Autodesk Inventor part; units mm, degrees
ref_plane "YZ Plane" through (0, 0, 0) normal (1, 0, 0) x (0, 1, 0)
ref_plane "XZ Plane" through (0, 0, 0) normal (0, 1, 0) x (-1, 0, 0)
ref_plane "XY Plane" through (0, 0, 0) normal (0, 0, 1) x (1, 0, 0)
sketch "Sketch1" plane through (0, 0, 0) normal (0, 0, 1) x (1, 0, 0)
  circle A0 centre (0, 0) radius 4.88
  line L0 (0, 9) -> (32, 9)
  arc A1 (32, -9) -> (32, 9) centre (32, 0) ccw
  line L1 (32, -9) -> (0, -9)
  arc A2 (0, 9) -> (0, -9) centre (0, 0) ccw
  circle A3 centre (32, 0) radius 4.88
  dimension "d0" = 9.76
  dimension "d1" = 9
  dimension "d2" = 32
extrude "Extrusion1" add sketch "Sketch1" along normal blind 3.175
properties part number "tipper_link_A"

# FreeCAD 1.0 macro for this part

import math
import FreeCAD as App
import Part
import Sketcher

V = App.Vector
Q = App.Units.Quantity

doc = App.newDocument("Part")
body = doc.addObject("PartDesign::Body", "Body")

# Sketch on XY plane
sketch1 = doc.addObject("Sketcher::SketchObject", "Sketch")
body.addObject(sketch1)
sketch1.AttachmentSupport = (doc.XY_Plane, [""])
sketch1.MapMode = "FlatFace"
sketch1.addGeometry(Part.LineSegment(V(32, 9, 0), V(0, 9, 0)), False)
sketch1.addGeometry(Part.ArcOfCircle(Part.Circle(V(0, 0, 0), V(0, 0, 1), 9), math.radians(90), math.radians(270)), False)
sketch1.addGeometry(Part.LineSegment(V(0, -9, 0), V(32, -9, 0)), False)
sketch1.addGeometry(Part.ArcOfCircle(Part.Circle(V(32, 0, 0), V(0, 0, 1), 9), math.radians(-90), math.radians(90)), False)
sketch1.addGeometry(Part.Circle(V(0, 0, 0), V(0, 0, 1), 4.9), False)
sketch1.addGeometry(Part.Circle(V(32, 0, 0), V(0, 0, 1), 4.9), False)
sketch1.addConstraint(Sketcher.Constraint("Tangent", 0, 2, 1, 1))
sketch1.addConstraint(Sketcher.Constraint("Tangent", 1, 2, 2, 1))
sketch1.addConstraint(Sketcher.Constraint("Tangent", 2, 2, 3, 1))
sketch1.addConstraint(Sketcher.Constraint("Tangent", 3, 2, 0, 1))
sketch1.addConstraint(Sketcher.Constraint("Horizontal", 0))
sketch1.addConstraint(Sketcher.Constraint("Horizontal", 2))
sketch1.addConstraint(Sketcher.Constraint("Coincident", 1, 3, -1, 1))
sketch1.addConstraint(Sketcher.Constraint("Coincident", 4, 3, -1, 1))
sketch1.addConstraint(Sketcher.Constraint("Coincident", 5, 3, 3, 3))
sketch1.addConstraint(Sketcher.Constraint("Equal", 4, 5))
sketch1.addConstraint(Sketcher.Constraint("Radius", 1, Q("9 mm")))
sketch1.addConstraint(Sketcher.Constraint("Diameter", 4, Q("9.76 mm")))
sketch1.addConstraint(Sketcher.Constraint("DistanceX", 0, 2, 0, 1, Q("32 mm")))
pad1 = doc.addObject("PartDesign::Pad", "Pad")
body.addObject(pad1)
pad1.Profile = sketch1
pad1.Length = 3.175

doc.recompute()
